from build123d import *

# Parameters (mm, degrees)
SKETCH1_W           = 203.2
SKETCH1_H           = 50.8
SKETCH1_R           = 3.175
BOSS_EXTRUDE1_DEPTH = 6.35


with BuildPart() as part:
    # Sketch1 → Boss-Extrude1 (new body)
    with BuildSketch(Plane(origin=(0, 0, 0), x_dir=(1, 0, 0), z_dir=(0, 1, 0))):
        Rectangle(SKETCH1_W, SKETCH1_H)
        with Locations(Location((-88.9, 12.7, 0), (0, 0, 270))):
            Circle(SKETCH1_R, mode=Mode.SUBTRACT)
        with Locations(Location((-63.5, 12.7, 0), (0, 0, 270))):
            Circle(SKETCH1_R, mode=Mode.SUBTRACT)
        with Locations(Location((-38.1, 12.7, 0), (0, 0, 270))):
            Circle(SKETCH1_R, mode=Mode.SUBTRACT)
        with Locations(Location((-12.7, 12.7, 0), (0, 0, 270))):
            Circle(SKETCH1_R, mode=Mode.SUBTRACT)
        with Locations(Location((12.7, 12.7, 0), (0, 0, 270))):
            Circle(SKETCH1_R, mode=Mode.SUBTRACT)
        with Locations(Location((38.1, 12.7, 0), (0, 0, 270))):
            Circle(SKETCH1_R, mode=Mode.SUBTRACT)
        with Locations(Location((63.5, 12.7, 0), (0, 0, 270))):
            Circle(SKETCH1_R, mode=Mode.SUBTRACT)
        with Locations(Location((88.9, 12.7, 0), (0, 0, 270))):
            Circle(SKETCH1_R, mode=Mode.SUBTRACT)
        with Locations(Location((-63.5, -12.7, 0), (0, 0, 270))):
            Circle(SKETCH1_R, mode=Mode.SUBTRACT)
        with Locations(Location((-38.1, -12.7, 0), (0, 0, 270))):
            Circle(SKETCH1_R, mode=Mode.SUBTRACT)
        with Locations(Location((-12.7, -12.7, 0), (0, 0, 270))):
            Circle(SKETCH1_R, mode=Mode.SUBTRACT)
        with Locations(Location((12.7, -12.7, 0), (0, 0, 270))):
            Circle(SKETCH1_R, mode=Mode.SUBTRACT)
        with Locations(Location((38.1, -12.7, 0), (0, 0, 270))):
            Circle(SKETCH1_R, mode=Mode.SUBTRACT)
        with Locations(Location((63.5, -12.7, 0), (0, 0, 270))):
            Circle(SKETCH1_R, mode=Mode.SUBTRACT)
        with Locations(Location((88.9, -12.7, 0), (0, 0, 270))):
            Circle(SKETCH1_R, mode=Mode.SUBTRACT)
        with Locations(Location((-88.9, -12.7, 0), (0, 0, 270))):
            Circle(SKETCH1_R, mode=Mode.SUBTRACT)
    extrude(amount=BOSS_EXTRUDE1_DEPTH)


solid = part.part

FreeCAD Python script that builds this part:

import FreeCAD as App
import Part
import Sketcher
Q = App.Units.Quantity


def add_polygon(sketch, points):
    """Adds a closed chain of lines whose ends are joined by coincident constraints."""
    first, n = sketch.GeometryCount, len(points)
    for a, b in zip(points, points[1:] + points[:1]):
        sketch.addGeometry(Part.LineSegment(App.Vector(*a, 0), App.Vector(*b, 0)), False)
    for i in range(n):
        sketch.addConstraint(Sketcher.Constraint("Coincident", first + i, 2, first + (i + 1) % n, 1))

doc = App.newDocument("Part")
body = doc.addObject("PartDesign::Body", "Body")

# Sketch on XZ plane
sketch1 = body.newObject("Sketcher::SketchObject", "Sketch")
sketch1.AttachmentSupport = (doc.getObject("XZ_Plane"), [""])
sketch1.MapMode = "FlatFace"
add_polygon(sketch1, [(-101.6, -25.4), (-101.6, 25.4), (101.6, 25.4), (101.6, -25.4)])  # lines 0-3
sketch1.addGeometry(Part.Circle(App.Vector(-88.9, 12.7, 0), App.Vector(0, 0, 1), 3.2), False)  # 4
sketch1.addGeometry(Part.Circle(App.Vector(-63.5, 12.7, 0), App.Vector(0, 0, 1), 3.2), False)  # 5
sketch1.addGeometry(Part.Circle(App.Vector(-38.1, 12.7, 0), App.Vector(0, 0, 1), 3.2), False)  # 6
sketch1.addGeometry(Part.Circle(App.Vector(-12.7, 12.7, 0), App.Vector(0, 0, 1), 3.2), False)  # 7
sketch1.addGeometry(Part.Circle(App.Vector(12.7, 12.7, 0), App.Vector(0, 0, 1), 3.2), False)  # 8
sketch1.addGeometry(Part.Circle(App.Vector(38.1, 12.7, 0), App.Vector(0, 0, 1), 3.2), False)  # 9
sketch1.addGeometry(Part.Circle(App.Vector(63.5, 12.7, 0), App.Vector(0, 0, 1), 3.2), False)  # 10
sketch1.addGeometry(Part.Circle(App.Vector(88.9, 12.7, 0), App.Vector(0, 0, 1), 3.2), False)  # 11
sketch1.addGeometry(Part.Circle(App.Vector(-88.9, -12.7, 0), App.Vector(0, 0, 1), 3.2), False)  # 12
sketch1.addGeometry(Part.Circle(App.Vector(-63.5, -12.7, 0), App.Vector(0, 0, 1), 3.2), False)  # 13
sketch1.addGeometry(Part.Circle(App.Vector(-38.1, -12.7, 0), App.Vector(0, 0, 1), 3.2), False)  # 14
sketch1.addGeometry(Part.Circle(App.Vector(-12.7, -12.7, 0), App.Vector(0, 0, 1), 3.2), False)  # 15
sketch1.addGeometry(Part.Circle(App.Vector(12.7, -12.7, 0), App.Vector(0, 0, 1), 3.2), False)  # 16
sketch1.addGeometry(Part.Circle(App.Vector(38.1, -12.7, 0), App.Vector(0, 0, 1), 3.2), False)  # 17
sketch1.addGeometry(Part.Circle(App.Vector(63.5, -12.7, 0), App.Vector(0, 0, 1), 3.2), False)  # 18
sketch1.addGeometry(Part.Circle(App.Vector(88.9, -12.7, 0), App.Vector(0, 0, 1), 3.2), False)  # 19
sketch1.addConstraint([
    Sketcher.Constraint("Vertical", 0),
    Sketcher.Constraint("Horizontal", 1),
    Sketcher.Constraint("Vertical", 2),
    Sketcher.Constraint("Horizontal", 3),
    Sketcher.Constraint("Equal", 4, 5),
    Sketcher.Constraint("Equal", 5, 6),
    Sketcher.Constraint("Equal", 6, 7),
    Sketcher.Constraint("Equal", 7, 8),
    Sketcher.Constraint("Equal", 8, 9),
    Sketcher.Constraint("Equal", 9, 10),
    Sketcher.Constraint("Equal", 10, 11),
    Sketcher.Constraint("Equal", 11, 12),
    Sketcher.Constraint("Equal", 12, 13),
    Sketcher.Constraint("Equal", 13, 14),
    Sketcher.Constraint("Equal", 14, 15),
    Sketcher.Constraint("Equal", 15, 16),
    Sketcher.Constraint("Equal", 16, 17),
    Sketcher.Constraint("Equal", 17, 18),
    Sketcher.Constraint("Equal", 18, 19),
    Sketcher.Constraint("Symmetric", 11, 3, 12, 3, -1, 1),
    Sketcher.Constraint("Symmetric", 10, 3, 13, 3, -1, 1),
    Sketcher.Constraint("Symmetric", 9, 3, 14, 3, -1, 1),
    Sketcher.Constraint("Symmetric", 8, 3, 15, 3, -1, 1),
    Sketcher.Constraint("Symmetric", 7, 3, 16, 3, -1, 1),
    Sketcher.Constraint("Symmetric", 6, 3, 17, 3, -1, 1),
    Sketcher.Constraint("Symmetric", 5, 3, 18, 3, -1, 1),
    Sketcher.Constraint("Symmetric", 4, 3, 19, 3, -1, 1),
    Sketcher.Constraint("Symmetric", 0, 2, 2, 2, -1, 1),
    Sketcher.Constraint("Symmetric", 7, 3, 8, 3, -2),
    Sketcher.Constraint("Symmetric", 6, 3, 9, 3, -2),
    Sketcher.Constraint("Symmetric", 5, 3, 10, 3, -2),
    Sketcher.Constraint("Symmetric", 4, 3, 11, 3, -2),
    Sketcher.Constraint("Horizontal", 4, 3, 5, 3),
    Sketcher.Constraint("Horizontal", 5, 3, 6, 3),
    Sketcher.Constraint("Horizontal", 6, 3, 7, 3),
    Sketcher.Constraint("Diameter", 4, Q("0.25 in")),
    Sketcher.Constraint("DistanceX", 1, 1, 1, 2, Q("8 in")),
    Sketcher.Constraint("DistanceY", 0, 1, 0, 2, Q("2 in")),
    Sketcher.Constraint("DistanceX", 4, 3, 5, 3, Q("1 in")),
    Sketcher.Constraint("DistanceX", 5, 3, 6, 3, Q("1 in")),
    Sketcher.Constraint("DistanceX", 6, 3, 7, 3, Q("1 in")),
    Sketcher.Constraint("DistanceX", 7, 3, 8, 3, Q("1 in")),
    Sketcher.Constraint("DistanceY", 12, 3, 4, 3, Q("1 in")),
])
pad1 = body.newObject("PartDesign::Pad", "Pad")
pad1.Profile = sketch1
pad1.Length = Q("0.25 in")
pad1.Reversed = True

doc.recompute()
